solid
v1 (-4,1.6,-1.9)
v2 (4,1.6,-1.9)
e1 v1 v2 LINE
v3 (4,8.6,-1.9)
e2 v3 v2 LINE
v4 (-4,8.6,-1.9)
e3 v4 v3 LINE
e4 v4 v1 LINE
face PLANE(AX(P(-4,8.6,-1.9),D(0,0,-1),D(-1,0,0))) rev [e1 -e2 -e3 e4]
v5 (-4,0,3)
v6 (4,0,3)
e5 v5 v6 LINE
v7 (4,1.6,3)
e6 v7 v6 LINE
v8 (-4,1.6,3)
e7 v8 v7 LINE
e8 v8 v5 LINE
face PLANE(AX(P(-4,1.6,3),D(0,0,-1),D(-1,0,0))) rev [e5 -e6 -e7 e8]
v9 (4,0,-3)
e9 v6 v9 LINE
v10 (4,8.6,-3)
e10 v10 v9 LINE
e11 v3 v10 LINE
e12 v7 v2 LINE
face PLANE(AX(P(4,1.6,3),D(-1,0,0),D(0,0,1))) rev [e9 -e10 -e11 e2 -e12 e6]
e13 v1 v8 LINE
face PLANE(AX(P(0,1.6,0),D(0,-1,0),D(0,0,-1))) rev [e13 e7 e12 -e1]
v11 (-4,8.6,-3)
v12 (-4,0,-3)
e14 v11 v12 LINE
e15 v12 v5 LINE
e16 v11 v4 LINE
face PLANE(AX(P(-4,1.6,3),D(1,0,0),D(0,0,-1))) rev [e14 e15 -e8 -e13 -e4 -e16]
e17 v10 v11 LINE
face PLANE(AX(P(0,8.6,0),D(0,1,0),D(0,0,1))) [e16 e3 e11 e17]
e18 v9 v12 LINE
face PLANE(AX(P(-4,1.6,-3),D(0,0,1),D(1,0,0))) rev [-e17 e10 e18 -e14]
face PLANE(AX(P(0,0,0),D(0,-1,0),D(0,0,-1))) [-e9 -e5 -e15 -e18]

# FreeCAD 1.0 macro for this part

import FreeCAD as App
import Part
import Sketcher
Q = App.Units.Quantity

doc = App.newDocument("Part")
body = doc.addObject("PartDesign::Body", "Body")

# Sketch on XZ plane
sketch1 = body.newObject("Sketcher::SketchObject", "Sketch")
sketch1.AttachmentSupport = (doc.getObject("XZ_Plane"), [""])
sketch1.MapMode = "FlatFace"
sketch1.addGeometry(Part.LineSegment(App.Vector(-4, -3, 0), App.Vector(-4, 3, 0)), False)
sketch1.addGeometry(Part.LineSegment(App.Vector(-4, 3, 0), App.Vector(4, 3, 0)), False)
sketch1.addGeometry(Part.LineSegment(App.Vector(4, 3, 0), App.Vector(4, -3, 0)), False)
sketch1.addGeometry(Part.LineSegment(App.Vector(4, -3, 0), App.Vector(-4, -3, 0)), False)
sketch1.addConstraint(Sketcher.Constraint("Coincident", 0, 2, 1, 1))
sketch1.addConstraint(Sketcher.Constraint("Coincident", 1, 2, 2, 1))
sketch1.addConstraint(Sketcher.Constraint("Coincident", 2, 2, 3, 1))
sketch1.addConstraint(Sketcher.Constraint("Coincident", 3, 2, 0, 1))
sketch1.addConstraint(Sketcher.Constraint("Vertical", 0))
sketch1.addConstraint(Sketcher.Constraint("Horizontal", 1))
sketch1.addConstraint(Sketcher.Constraint("Vertical", 2))
sketch1.addConstraint(Sketcher.Constraint("Horizontal", 3))
sketch1.addConstraint(Sketcher.Constraint("Symmetric", 0, 2, 2, 2, -1, 1))
sketch1.addConstraint(Sketcher.Constraint("DistanceX", 1, 1, 1, 2, Q("8 mm")))
sketch1.addConstraint(Sketcher.Constraint("DistanceY", 0, 1, 0, 2, Q("6 mm")))
pad1 = body.newObject("PartDesign::Pad", "Pad")
pad1.Profile = sketch1
pad1.Length = 1.6
pad1.Reversed = True

# Sketch on XZ plane
sketch2 = body.newObject("Sketcher::SketchObject", "Sketch001")
sketch2.AttachmentSupport = (doc.getObject("XZ_Plane"), [""])
sketch2.MapMode = "FlatFace"
sketch2.AttachmentOffset = App.Placement(App.Vector(0, 0, -1.6), App.Rotation())
sketch2.addGeometry(Part.LineSegment(App.Vector(-4, -3, 0), App.Vector(-4, -1.9, 0)), False)
sketch2.addGeometry(Part.LineSegment(App.Vector(-4, -1.9, 0), App.Vector(4, -1.9, 0)), False)
sketch2.addGeometry(Part.LineSegment(App.Vector(4, -1.9, 0), App.Vector(4, -3, 0)), False)
sketch2.addGeometry(Part.LineSegment(App.Vector(4, -3, 0), App.Vector(-4, -3, 0)), False)
sketch2.addConstraint(Sketcher.Constraint("Coincident", 0, 2, 1, 1))
sketch2.addConstraint(Sketcher.Constraint("Coincident", 1, 2, 2, 1))
sketch2.addConstraint(Sketcher.Constraint("Coincident", 2, 2, 3, 1))
sketch2.addConstraint(Sketcher.Constraint("Coincident", 3, 2, 0, 1))
sketch2.addConstraint(Sketcher.Constraint("Vertical", 0))
sketch2.addConstraint(Sketcher.Constraint("Horizontal", 1))
sketch2.addConstraint(Sketcher.Constraint("Vertical", 2))
sketch2.addConstraint(Sketcher.Constraint("Horizontal", 3))
sketch2.addConstraint(Sketcher.Constraint("DistanceX", 1, 1, 1, 2, Q("8 mm")))
sketch2.addConstraint(Sketcher.Constraint("DistanceY", 0, 1, 0, 2, Q("1.1 mm")))
sketch2.addConstraint(Sketcher.Constraint("DistanceX", 0, 2, -1, 1, Q("4 mm")))
sketch2.addConstraint(Sketcher.Constraint("DistanceY", 2, 2, -1, 1, Q("3 mm")))
pad2 = body.newObject("PartDesign::Pad", "Pad001")
pad2.Profile = sketch2
pad2.Length = 7
pad2.Reversed = True

doc.recompute()
